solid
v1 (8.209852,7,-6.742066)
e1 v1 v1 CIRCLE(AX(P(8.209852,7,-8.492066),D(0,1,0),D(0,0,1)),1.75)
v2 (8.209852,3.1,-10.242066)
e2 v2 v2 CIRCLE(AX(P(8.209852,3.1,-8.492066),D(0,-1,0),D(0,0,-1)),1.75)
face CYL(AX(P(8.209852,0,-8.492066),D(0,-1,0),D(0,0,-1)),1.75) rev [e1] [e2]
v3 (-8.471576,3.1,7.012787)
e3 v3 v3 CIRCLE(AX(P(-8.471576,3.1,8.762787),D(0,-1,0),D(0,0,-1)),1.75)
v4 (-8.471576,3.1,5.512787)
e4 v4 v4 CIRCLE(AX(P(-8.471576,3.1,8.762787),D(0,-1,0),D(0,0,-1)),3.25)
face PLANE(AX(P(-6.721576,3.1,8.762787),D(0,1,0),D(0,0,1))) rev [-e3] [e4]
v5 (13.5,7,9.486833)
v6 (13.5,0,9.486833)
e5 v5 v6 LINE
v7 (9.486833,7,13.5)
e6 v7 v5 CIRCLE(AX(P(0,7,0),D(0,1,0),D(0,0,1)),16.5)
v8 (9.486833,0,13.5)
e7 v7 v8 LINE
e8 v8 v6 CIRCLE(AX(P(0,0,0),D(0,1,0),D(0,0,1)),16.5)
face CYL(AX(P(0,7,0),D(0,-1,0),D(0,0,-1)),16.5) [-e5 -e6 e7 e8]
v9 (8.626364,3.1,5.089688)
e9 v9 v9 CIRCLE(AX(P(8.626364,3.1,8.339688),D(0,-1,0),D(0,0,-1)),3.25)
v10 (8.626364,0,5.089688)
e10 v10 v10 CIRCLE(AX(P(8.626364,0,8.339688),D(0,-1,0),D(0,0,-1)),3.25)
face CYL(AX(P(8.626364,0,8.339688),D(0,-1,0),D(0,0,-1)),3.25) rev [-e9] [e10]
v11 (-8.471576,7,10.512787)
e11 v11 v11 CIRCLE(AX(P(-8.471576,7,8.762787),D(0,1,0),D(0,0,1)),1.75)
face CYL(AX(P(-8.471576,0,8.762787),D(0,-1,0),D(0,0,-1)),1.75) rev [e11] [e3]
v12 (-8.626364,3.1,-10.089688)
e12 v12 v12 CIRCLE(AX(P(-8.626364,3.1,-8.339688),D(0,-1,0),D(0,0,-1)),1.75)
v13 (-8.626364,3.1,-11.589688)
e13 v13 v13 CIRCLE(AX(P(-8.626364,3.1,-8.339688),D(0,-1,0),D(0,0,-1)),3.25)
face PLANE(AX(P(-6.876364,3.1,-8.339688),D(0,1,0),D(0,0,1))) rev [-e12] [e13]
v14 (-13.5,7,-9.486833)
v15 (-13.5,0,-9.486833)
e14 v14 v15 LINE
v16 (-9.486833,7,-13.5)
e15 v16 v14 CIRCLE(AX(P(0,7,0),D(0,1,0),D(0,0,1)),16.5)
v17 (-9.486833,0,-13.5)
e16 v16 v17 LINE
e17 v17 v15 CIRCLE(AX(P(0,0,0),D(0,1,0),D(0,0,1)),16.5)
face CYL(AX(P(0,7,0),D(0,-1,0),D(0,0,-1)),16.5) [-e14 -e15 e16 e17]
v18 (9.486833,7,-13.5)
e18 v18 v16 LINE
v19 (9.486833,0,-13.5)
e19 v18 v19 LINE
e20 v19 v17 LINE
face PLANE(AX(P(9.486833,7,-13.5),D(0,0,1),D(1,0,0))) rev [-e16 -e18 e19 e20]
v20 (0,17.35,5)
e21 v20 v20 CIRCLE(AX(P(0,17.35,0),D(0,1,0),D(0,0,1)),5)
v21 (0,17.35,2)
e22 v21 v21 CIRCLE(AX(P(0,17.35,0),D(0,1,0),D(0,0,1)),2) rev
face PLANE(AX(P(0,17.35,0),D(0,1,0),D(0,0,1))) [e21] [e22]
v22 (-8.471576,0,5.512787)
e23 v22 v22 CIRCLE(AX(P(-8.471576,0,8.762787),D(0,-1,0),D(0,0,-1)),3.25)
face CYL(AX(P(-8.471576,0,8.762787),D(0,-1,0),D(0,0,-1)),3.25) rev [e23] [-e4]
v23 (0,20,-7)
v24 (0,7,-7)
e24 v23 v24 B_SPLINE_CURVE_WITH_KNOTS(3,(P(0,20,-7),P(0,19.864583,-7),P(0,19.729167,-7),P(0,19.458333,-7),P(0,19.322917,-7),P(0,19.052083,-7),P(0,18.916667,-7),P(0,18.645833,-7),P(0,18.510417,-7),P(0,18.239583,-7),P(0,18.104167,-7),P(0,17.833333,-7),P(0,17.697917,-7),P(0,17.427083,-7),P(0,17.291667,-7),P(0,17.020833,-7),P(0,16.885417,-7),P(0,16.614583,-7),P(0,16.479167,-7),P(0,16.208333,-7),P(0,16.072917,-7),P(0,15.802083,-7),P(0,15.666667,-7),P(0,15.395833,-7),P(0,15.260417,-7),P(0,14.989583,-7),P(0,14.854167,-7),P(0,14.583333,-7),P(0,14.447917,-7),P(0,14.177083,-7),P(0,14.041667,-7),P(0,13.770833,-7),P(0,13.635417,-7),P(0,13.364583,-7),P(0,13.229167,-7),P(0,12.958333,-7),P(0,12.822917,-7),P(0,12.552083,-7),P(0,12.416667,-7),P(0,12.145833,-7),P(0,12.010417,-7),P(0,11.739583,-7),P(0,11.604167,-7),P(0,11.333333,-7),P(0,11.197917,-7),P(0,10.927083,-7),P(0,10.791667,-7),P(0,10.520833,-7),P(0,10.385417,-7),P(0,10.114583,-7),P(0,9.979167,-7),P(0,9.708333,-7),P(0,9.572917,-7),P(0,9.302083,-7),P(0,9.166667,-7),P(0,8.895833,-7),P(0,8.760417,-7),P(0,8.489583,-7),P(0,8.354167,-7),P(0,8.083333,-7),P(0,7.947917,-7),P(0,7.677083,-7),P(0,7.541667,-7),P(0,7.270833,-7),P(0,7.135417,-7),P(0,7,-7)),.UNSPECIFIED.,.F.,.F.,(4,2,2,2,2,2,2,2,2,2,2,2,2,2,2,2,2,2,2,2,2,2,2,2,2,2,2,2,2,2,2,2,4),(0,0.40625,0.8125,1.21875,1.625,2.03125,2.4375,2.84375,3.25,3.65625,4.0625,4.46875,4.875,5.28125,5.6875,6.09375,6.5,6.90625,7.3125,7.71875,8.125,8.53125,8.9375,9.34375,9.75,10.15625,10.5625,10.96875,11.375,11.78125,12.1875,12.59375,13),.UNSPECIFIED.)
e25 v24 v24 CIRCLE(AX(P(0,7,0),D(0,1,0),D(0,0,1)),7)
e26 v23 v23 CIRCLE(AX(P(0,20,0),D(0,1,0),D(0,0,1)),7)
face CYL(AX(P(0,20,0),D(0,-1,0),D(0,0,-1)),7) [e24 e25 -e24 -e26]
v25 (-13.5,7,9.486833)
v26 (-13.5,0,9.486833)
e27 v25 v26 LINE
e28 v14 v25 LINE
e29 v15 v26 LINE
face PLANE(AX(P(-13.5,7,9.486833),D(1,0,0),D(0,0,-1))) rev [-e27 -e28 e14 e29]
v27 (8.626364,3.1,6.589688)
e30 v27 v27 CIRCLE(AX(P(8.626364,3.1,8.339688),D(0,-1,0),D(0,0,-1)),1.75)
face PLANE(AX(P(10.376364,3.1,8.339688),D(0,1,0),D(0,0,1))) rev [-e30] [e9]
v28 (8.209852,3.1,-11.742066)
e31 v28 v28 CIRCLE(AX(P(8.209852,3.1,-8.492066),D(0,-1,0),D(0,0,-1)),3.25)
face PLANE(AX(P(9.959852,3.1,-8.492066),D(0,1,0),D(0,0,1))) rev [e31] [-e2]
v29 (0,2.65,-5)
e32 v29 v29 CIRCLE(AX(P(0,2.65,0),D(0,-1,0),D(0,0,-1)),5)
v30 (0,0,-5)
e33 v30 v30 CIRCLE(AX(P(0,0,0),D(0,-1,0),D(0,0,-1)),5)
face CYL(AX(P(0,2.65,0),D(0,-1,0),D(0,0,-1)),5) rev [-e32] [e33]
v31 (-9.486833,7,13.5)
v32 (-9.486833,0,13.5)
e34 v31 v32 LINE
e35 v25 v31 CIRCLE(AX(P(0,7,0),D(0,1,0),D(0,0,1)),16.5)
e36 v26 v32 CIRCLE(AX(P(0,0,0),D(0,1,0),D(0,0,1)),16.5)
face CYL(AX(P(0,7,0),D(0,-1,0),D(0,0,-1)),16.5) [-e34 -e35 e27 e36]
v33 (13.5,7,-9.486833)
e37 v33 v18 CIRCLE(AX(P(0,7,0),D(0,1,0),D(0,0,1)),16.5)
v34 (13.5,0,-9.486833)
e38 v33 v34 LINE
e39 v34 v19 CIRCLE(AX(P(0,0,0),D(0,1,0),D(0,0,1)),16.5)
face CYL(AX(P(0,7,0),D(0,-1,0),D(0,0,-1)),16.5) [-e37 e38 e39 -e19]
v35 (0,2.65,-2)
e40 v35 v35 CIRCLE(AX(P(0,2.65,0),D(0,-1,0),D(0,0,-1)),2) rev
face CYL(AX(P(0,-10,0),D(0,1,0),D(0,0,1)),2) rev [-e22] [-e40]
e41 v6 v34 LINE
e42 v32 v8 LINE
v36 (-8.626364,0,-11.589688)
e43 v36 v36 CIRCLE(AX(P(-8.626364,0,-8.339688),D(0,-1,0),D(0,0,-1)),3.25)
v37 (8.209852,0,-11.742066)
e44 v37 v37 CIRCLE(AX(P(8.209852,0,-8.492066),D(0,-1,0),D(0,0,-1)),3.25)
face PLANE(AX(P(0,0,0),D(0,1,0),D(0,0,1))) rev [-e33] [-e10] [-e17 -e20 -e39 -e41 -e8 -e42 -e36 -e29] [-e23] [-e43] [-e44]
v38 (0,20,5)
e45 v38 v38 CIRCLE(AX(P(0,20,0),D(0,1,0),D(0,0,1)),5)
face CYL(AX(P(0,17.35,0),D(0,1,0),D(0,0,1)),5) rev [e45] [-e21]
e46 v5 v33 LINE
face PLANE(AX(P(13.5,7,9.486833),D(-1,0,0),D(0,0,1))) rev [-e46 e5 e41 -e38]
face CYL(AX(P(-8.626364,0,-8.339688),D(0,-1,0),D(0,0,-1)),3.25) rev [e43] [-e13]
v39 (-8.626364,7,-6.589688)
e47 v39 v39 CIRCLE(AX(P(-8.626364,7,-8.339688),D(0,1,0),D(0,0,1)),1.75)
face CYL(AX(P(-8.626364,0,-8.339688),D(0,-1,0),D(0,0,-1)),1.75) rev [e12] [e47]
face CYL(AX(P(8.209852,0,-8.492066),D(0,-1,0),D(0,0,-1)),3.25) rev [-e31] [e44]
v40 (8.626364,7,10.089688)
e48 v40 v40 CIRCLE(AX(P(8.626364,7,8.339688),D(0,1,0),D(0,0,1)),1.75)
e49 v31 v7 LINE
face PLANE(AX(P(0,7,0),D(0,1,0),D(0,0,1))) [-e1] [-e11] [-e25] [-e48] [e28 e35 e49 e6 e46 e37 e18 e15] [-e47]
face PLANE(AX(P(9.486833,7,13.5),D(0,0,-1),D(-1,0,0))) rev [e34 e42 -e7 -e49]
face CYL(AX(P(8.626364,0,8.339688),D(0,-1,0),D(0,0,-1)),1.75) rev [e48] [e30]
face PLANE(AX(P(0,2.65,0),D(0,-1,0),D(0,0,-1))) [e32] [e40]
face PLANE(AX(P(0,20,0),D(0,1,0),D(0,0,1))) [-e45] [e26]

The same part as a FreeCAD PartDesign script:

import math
import FreeCAD as App
import Part
import Sketcher
from FreeCAD import Vector
Q = App.Units.Quantity

doc = App.newDocument("Part")
body = doc.addObject("PartDesign::Body", "Body")

# Sketch on XZ plane
sketch1 = body.newObject("Sketcher::SketchObject", "Sketch")
sketch1.AttachmentSupport = (doc.getObject("XZ_Plane"), [""])
sketch1.MapMode = "FlatFace"
sketch1.addGeometry(Part.LineSegment(Vector(-9, 14, 0), Vector(9, 14, 0)), False)
sketch1.addGeometry(Part.ArcOfCircle(Part.Circle(Vector(0, 0, 0), Vector(0, 0, 1), 16), math.radians(35.1), math.radians(54.9)), False)
sketch1.addGeometry(Part.LineSegment(Vector(14, 9, 0), Vector(14, -9, 0)), False)
sketch1.addGeometry(Part.ArcOfCircle(Part.Circle(Vector(0, 0, 0), Vector(0, 0, 1), 16), math.radians(-54.9), math.radians(-35.1)), False)
sketch1.addGeometry(Part.LineSegment(Vector(9, -14, 0), Vector(-9, -14, 0)), False)
sketch1.addGeometry(Part.ArcOfCircle(Part.Circle(Vector(0, 0, 0), Vector(0, 0, 1), 16), math.radians(-144.9), math.radians(-125.1)), False)
sketch1.addGeometry(Part.LineSegment(Vector(-14, -9, 0), Vector(-14, 9, 0)), False)
sketch1.addGeometry(Part.ArcOfCircle(Part.Circle(Vector(0, 0, 0), Vector(0, 0, 1), 16), math.radians(125.1), math.radians(144.9)), False)
sketch1.addConstraint(Sketcher.Constraint("Coincident", 0, 2, 1, 2))
sketch1.addConstraint(Sketcher.Constraint("Coincident", 1, 1, 2, 1))
sketch1.addConstraint(Sketcher.Constraint("Coincident", 2, 2, 3, 2))
sketch1.addConstraint(Sketcher.Constraint("Coincident", 3, 1, 4, 1))
sketch1.addConstraint(Sketcher.Constraint("Coincident", 4, 2, 5, 2))
sketch1.addConstraint(Sketcher.Constraint("Coincident", 5, 1, 6, 1))
sketch1.addConstraint(Sketcher.Constraint("Coincident", 6, 2, 7, 2))
sketch1.addConstraint(Sketcher.Constraint("Coincident", 7, 1, 0, 1))
sketch1.addConstraint(Sketcher.Constraint("Horizontal", 0))
sketch1.addConstraint(Sketcher.Constraint("Vertical", 2))
sketch1.addConstraint(Sketcher.Constraint("Horizontal", 4))
sketch1.addConstraint(Sketcher.Constraint("Vertical", 6))
sketch1.addConstraint(Sketcher.Constraint("Coincident", 1, 3, -1, 1))
sketch1.addConstraint(Sketcher.Constraint("Coincident", 3, 3, -1, 1))
sketch1.addConstraint(Sketcher.Constraint("Coincident", 5, 3, -1, 1))
sketch1.addConstraint(Sketcher.Constraint("Coincident", 7, 3, -1, 1))
sketch1.addConstraint(Sketcher.Constraint("Equal", 1, 3))
sketch1.addConstraint(Sketcher.Constraint("Equal", 3, 5))
sketch1.addConstraint(Sketcher.Constraint("Equal", 5, 7))
sketch1.addConstraint(Sketcher.Constraint("Horizontal", 2, 2, 5, 1))
sketch1.addConstraint(Sketcher.Constraint("Vertical", 0, 2, 3, 1))
sketch1.addConstraint(Sketcher.Constraint("Equal", 4, 2))
sketch1.addConstraint(Sketcher.Constraint("Radius", 1, Q("16.5 mm")))
sketch1.addConstraint(Sketcher.Constraint("DistanceY", -1, 1, 0, 2, Q("13.5 mm")))
pad1 = body.newObject("PartDesign::Pad", "Pad")
pad1.Profile = sketch1
pad1.Length = 7
pad1.Reversed = True

# Sketch on XZ plane
sketch2 = body.newObject("Sketcher::SketchObject", "Sketch001")
sketch2.AttachmentSupport = (doc.getObject("XZ_Plane"), [""])
sketch2.MapMode = "FlatFace"
sketch2.AttachmentOffset = App.Placement(Vector(0, 0, -7), App.Rotation())
sketch2.addGeometry(Part.Circle(Vector(0, 0, 0), Vector(0, 0, 1), 7), False)
sketch2.addConstraint(Sketcher.Constraint("Coincident", 0, 3, -1, 1))
sketch2.addConstraint(Sketcher.Constraint("Diameter", 0, Q("14 mm")))
pad2 = body.newObject("PartDesign::Pad", "Pad001")
pad2.Profile = sketch2
pad2.Length = 13
pad2.Reversed = True

# Sketch on XZ plane
sketch3 = body.newObject("Sketcher::SketchObject", "Sketch002")
sketch3.AttachmentSupport = (doc.getObject("XZ_Plane"), [""])
sketch3.MapMode = "FlatFace"
sketch3.AttachmentOffset = App.Placement(Vector(0, 0, -20), App.Rotation())
sketch3.addGeometry(Part.Circle(Vector(0, 0, 0), Vector(0, 0, 1), 2), False)
sketch3.addConstraint(Sketcher.Constraint("Coincident", 0, 3, -1, 1))
sketch3.addConstraint(Sketcher.Constraint("Diameter", 0, Q("4 mm")))
pocket1 = body.newObject("PartDesign::Pocket", "Pocket")
pocket1.Profile = sketch3
pocket1.Length = 30
pocket1.Reversed = True

# Sketch on XZ plane
sketch4 = body.newObject("Sketcher::SketchObject", "Sketch003")
sketch4.AttachmentSupport = (doc.getObject("XZ_Plane"), [""])
sketch4.MapMode = "FlatFace"
sketch4.AttachmentOffset = App.Placement(Vector(0, 0, -20), App.Rotation())
sketch4.addGeometry(Part.Circle(Vector(0, 0, 0), Vector(0, 0, 1), 5), False)
sketch4.addConstraint(Sketcher.Constraint("Coincident", 0, 3, -1, 1))
sketch4.addConstraint(Sketcher.Constraint("Diameter", 0, Q("10 mm")))
pocket2 = body.newObject("PartDesign::Pocket", "Pocket001")
pocket2.Profile = sketch4
pocket2.Length = 2.65
pocket2.Reversed = True

# Sketch on XZ plane
sketch5 = body.newObject("Sketcher::SketchObject", "Sketch004")
sketch5.AttachmentSupport = (doc.getObject("XZ_Plane"), [""])
sketch5.MapMode = "FlatFace"
sketch5.AttachmentOffset = App.Placement(Vector(0, 0, -2.65), App.Rotation())
sketch5.addGeometry(Part.Circle(Vector(0, 0, 0), Vector(0, 0, 1), 5), False)
sketch5.addConstraint(Sketcher.Constraint("Coincident", 0, 3, -1, 1))
sketch5.addConstraint(Sketcher.Constraint("Diameter", 0, Q("10 mm")))
pocket3 = body.newObject("PartDesign::Pocket", "Pocket002")
pocket3.Profile = sketch5
pocket3.Length = 2.65
pocket3.Reversed = True

# Sketch on XZ plane
sketch6 = body.newObject("Sketcher::SketchObject", "Sketch005")
sketch6.AttachmentSupport = (doc.getObject("XZ_Plane"), [""])
sketch6.MapMode = "FlatFace"
sketch6.addGeometry(Part.Circle(Vector(8.2, -8.5, 0), Vector(0, 0, 1), 1.8), False)
sketch6.addGeometry(Part.Circle(Vector(-8.6, -8.3, 0), Vector(0, 0, 1), 1.8), False)
sketch6.addGeometry(Part.Circle(Vector(-8.5, 8.8, 0), Vector(0, 0, 1), 1.8), False)
sketch6.addGeometry(Part.Circle(Vector(8.6, 8.3, 0), Vector(0, 0, 1), 1.8), False)
sketch6.addConstraint(Sketcher.Constraint("Equal", 0, 1))
sketch6.addConstraint(Sketcher.Constraint("Equal", 1, 2))
sketch6.addConstraint(Sketcher.Constraint("Equal", 2, 3))
sketch6.addConstraint(Sketcher.Constraint("Symmetric", 1, 3, 3, 3, -1, 1))
sketch6.addConstraint(Sketcher.Constraint("Diameter", 0, Q("3.5 mm")))
sketch6.addConstraint(Sketcher.Constraint("DistanceY", 3, 3, 2, 3, Q("0.423099 mm")))
sketch6.addConstraint(Sketcher.Constraint("DistanceY", 0, 3, 1, 3, Q("0.152378 mm")))
sketch6.addConstraint(Sketcher.Constraint("DistanceX", 1, 3, 2, 3, Q("0.154788 mm")))
sketch6.addConstraint(Sketcher.Constraint("DistanceX", 2, 3, 0, 3, Q("16.681429 mm")))
sketch6.addConstraint(Sketcher.Constraint("DistanceX", 0, 3, 3, 3, Q("0.416512 mm")))
sketch6.addConstraint(Sketcher.Constraint("DistanceY", 0, 3, -1, 1, Q("8.492066 mm")))
doc.recompute()
hole = body.newObject("PartDesign::Hole", "Hole")
hole.Profile = sketch6
hole.ThreadType = "None"
hole.Diameter = 3.5
hole.DepthType = "Dimension"
hole.Depth = 20
hole.DrillPoint = "Angled"
hole.DrillPointAngle = 118
hole.HoleCutType = "Counterbore"
hole.HoleCutDiameter = 6.5
hole.HoleCutDepth = 3.1

doc.recompute()
